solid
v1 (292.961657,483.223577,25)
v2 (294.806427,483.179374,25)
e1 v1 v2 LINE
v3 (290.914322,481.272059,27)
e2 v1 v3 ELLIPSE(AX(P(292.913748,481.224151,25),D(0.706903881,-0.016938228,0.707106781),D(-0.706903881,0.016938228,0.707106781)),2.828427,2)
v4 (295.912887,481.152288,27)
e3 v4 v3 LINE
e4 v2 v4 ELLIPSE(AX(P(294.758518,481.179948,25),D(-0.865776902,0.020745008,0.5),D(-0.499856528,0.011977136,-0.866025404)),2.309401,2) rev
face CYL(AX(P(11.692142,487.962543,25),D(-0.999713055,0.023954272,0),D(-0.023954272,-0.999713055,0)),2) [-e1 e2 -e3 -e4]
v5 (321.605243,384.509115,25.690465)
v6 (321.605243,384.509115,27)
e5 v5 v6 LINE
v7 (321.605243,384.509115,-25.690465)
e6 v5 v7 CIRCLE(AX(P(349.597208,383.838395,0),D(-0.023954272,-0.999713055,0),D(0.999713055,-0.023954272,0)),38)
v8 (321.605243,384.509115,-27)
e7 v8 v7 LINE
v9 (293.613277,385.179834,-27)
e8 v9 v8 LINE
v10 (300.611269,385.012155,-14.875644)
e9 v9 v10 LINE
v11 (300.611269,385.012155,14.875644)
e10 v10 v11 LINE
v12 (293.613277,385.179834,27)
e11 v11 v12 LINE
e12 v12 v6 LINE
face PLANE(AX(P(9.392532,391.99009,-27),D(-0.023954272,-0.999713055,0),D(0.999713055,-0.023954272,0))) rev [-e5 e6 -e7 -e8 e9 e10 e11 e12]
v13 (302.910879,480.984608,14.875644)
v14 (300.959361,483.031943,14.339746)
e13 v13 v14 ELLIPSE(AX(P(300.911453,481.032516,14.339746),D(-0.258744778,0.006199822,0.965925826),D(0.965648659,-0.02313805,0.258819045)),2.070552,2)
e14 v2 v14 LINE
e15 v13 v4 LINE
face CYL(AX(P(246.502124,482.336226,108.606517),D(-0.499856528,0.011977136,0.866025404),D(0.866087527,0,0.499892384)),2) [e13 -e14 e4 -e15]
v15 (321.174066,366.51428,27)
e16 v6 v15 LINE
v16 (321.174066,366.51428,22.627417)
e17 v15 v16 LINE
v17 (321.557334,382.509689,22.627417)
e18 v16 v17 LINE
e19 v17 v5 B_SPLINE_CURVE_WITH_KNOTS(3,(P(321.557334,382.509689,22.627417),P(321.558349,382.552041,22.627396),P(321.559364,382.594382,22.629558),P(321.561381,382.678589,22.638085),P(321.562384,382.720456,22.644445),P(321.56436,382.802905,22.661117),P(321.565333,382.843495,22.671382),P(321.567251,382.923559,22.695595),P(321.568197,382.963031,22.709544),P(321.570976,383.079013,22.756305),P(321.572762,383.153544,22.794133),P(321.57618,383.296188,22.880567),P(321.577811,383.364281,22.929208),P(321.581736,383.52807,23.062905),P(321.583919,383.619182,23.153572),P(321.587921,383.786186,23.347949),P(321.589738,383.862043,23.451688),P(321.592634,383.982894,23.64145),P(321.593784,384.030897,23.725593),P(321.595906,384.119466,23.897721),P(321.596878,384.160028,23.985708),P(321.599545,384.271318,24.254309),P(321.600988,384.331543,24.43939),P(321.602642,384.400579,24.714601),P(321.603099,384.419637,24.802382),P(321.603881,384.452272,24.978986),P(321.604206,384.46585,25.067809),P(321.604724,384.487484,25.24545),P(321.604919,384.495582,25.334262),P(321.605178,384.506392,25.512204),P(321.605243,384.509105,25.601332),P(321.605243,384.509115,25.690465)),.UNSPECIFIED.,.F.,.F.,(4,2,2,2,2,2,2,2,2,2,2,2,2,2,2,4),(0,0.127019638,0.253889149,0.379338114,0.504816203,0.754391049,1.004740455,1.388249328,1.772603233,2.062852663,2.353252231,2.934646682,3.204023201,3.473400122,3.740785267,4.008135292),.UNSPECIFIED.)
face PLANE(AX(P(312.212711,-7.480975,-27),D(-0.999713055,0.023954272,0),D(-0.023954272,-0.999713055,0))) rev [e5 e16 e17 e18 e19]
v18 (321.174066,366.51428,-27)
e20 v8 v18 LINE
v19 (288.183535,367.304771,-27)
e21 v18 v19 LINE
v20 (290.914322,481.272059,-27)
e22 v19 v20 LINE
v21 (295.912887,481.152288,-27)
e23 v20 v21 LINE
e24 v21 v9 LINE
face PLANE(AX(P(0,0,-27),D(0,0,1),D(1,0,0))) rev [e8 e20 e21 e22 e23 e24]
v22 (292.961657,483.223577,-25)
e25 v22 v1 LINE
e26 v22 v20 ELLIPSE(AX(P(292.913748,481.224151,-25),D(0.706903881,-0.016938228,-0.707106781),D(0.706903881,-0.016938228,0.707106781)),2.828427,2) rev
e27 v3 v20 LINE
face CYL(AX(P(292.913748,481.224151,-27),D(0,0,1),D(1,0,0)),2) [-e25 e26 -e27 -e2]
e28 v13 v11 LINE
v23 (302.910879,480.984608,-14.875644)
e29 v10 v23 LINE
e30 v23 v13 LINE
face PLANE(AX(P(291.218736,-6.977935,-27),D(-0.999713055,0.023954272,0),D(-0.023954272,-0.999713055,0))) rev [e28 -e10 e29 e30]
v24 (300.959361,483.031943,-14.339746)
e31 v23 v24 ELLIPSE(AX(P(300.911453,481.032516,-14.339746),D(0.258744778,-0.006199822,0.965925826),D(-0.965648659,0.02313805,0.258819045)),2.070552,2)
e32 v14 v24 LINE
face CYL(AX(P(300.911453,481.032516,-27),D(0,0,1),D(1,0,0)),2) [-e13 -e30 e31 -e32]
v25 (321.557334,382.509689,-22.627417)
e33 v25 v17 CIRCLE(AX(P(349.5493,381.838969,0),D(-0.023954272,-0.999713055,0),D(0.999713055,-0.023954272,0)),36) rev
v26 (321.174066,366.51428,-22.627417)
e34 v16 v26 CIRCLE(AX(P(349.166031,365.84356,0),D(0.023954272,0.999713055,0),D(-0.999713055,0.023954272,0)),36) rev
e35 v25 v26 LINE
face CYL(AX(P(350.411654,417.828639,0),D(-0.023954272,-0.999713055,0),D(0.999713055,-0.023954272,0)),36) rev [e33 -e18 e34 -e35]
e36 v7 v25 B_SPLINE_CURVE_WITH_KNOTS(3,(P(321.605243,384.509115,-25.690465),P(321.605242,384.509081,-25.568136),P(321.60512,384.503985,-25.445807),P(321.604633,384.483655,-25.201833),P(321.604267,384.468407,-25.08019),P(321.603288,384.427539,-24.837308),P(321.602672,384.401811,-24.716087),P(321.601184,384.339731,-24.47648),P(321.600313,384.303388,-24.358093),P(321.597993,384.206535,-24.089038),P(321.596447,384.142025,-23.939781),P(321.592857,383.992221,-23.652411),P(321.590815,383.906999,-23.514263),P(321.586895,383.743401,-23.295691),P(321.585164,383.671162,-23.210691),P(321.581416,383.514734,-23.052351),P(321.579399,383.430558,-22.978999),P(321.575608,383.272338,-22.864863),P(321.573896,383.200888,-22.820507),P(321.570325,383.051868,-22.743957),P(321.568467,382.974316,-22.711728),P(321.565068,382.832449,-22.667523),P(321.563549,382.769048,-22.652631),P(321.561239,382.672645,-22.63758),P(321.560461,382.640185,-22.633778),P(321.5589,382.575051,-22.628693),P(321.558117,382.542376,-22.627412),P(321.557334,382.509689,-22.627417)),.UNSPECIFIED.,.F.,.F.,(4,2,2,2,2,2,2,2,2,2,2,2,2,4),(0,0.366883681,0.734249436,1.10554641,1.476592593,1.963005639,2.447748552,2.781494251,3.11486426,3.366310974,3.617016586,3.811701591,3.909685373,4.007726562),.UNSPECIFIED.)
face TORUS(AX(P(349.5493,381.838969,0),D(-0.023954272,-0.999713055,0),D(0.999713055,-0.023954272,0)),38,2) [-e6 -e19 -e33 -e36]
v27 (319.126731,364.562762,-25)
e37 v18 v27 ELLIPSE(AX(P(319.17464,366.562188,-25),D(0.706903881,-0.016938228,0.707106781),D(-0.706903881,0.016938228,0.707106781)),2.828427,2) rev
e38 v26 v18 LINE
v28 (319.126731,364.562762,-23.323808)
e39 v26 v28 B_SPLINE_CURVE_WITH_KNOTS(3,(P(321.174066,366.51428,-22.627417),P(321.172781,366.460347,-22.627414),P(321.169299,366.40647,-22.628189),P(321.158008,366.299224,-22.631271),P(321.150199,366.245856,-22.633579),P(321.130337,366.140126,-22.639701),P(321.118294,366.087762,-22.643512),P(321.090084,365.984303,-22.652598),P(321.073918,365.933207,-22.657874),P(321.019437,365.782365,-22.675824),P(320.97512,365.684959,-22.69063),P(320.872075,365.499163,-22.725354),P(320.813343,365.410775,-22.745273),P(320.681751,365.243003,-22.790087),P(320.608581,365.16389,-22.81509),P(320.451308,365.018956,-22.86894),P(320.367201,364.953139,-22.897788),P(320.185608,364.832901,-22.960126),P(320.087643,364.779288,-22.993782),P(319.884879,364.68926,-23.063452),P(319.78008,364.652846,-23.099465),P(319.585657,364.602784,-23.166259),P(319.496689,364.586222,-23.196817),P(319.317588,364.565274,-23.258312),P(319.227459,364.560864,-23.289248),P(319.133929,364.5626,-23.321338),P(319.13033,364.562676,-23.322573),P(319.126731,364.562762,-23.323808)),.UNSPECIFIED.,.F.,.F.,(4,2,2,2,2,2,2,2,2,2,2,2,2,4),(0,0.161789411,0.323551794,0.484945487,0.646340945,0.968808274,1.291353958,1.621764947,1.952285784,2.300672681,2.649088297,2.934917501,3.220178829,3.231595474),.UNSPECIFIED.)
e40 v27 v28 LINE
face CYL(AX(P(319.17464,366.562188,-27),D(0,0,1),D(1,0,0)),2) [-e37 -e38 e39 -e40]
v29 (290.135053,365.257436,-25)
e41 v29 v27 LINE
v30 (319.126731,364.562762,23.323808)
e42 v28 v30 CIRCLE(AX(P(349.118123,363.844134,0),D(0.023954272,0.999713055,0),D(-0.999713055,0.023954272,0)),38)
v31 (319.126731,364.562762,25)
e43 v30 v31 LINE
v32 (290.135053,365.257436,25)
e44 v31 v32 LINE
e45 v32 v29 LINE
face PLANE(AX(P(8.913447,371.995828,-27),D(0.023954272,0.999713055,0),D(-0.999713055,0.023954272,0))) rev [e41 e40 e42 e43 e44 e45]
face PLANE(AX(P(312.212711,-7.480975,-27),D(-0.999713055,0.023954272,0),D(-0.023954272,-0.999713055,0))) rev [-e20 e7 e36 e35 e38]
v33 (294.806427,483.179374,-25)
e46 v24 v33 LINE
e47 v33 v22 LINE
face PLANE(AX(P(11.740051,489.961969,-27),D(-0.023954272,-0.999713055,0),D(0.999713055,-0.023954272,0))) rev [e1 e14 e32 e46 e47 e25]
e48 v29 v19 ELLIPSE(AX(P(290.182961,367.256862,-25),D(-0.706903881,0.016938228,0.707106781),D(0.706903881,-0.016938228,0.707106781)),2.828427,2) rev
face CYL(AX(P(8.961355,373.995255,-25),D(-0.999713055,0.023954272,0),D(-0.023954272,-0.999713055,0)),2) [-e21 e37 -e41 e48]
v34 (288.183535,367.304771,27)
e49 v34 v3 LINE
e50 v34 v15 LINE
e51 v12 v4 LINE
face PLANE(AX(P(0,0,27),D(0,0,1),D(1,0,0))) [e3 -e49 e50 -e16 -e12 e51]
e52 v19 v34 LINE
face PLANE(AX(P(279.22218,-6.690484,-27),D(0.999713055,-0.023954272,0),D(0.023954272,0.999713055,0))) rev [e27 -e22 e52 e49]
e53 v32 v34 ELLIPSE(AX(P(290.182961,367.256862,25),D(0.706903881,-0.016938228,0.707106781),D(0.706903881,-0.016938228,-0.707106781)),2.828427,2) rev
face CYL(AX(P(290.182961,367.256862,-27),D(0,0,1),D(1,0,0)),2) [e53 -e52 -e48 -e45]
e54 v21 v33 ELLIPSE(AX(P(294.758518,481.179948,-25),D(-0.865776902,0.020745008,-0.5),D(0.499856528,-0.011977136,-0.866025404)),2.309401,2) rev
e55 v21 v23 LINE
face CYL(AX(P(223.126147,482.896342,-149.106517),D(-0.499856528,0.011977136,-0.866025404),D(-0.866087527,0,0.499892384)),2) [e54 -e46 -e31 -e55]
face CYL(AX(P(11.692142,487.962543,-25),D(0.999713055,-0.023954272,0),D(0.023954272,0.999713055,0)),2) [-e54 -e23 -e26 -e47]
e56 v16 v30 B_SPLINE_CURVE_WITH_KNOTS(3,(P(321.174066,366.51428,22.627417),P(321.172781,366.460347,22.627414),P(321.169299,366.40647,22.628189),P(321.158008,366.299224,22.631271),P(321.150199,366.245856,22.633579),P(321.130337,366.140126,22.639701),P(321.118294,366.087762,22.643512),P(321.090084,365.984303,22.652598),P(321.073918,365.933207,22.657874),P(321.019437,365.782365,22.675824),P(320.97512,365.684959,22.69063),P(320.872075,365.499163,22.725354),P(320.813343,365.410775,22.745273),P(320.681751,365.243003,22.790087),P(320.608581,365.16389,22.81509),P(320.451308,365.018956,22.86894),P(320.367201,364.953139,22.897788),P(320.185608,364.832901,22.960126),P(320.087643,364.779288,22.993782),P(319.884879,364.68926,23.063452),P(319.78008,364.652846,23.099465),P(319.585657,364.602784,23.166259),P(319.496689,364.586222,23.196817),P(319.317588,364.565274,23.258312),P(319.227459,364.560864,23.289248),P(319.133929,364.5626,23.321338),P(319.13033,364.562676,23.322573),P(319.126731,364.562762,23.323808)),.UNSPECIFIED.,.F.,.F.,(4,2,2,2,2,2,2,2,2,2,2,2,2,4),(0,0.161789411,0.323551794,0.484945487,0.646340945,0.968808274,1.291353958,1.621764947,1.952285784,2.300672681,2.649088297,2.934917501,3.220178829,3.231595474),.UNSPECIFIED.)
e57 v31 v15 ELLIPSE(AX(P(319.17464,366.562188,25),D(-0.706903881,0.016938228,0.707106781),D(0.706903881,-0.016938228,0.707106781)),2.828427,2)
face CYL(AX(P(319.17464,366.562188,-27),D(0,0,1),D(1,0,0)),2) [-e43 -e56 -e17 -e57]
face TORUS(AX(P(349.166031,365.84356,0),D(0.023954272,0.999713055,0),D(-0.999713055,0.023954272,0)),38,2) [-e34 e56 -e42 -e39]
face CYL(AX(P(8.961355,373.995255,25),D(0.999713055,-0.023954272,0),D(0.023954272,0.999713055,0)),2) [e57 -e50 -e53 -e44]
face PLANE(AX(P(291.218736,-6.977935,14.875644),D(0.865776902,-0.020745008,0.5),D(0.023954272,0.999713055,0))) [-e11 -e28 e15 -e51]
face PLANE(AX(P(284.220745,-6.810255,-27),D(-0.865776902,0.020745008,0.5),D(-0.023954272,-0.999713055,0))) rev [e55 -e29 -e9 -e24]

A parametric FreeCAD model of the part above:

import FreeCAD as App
import Part
import Sketcher

V = App.Vector


def edges_at(feature, points):
    """Names of the edges that pass closest to the given points."""
    edges = feature.Shape.Edges
    near = lambda p: min(range(len(edges)), key=lambda i: edges[i].distToShape(Part.Vertex(*p))[0])
    return sorted({f"Edge{near(p) + 1}" for p in points})


def add_polygon(sketch, points):
    """Adds a closed chain of lines whose ends are joined by coincident constraints."""
    first, n = sketch.GeometryCount, len(points)
    for a, b in zip(points, points[1:] + points[:1]):
        sketch.addGeometry(Part.LineSegment(App.Vector(*a, 0), App.Vector(*b, 0)), False)
    for i in range(n):
        sketch.addConstraint(Sketcher.Constraint("Coincident", first + i, 2, first + (i + 1) % n, 1))

doc = App.newDocument("Part")
body = doc.addObject("PartDesign::Body", "Body")

# Sketch on XY plane
sketch1 = body.newObject("Sketcher::SketchObject", "Sketch")
sketch1.AttachmentSupport = (doc.getObject("XY_Plane"), [""])
sketch1.MapMode = "FlatFace"
add_polygon(sketch1, [(300.611269, 385.012155), (302.958787, 482.984034), (290.962231, 483.271485), (288.614712, 385.299603), (288.135627, 365.305345), (321.126157, 364.514854), (321.605243, 384.509115)])  # lines 0-6
sketch1.addConstraint(Sketcher.Constraint("Perpendicular", 0, 1))
sketch1.addConstraint(Sketcher.Constraint("Perpendicular", 1, 2))
sketch1.addConstraint(Sketcher.Constraint("Parallel", 2, 3))
sketch1.addConstraint(Sketcher.Constraint("Perpendicular", 3, 4))
sketch1.addConstraint(Sketcher.Constraint("Perpendicular", 4, 5))
sketch1.addConstraint(Sketcher.Constraint("Perpendicular", 5, 6))
sketch1.addConstraint(Sketcher.Constraint("Distance", 0, 98.0))
sketch1.addConstraint(Sketcher.Constraint("Distance", 1, 12.0))
sketch1.addConstraint(Sketcher.Constraint("Distance", 4, 33.0))
sketch1.addConstraint(Sketcher.Constraint("Distance", 5, 20.0))
sketch1.addConstraint(Sketcher.Constraint("DistanceY", 4, 2, 6, 2, 20.497301))
sketch1.addConstraint(Sketcher.Constraint("DistanceX", -1, 1, 1, 2, 290.962231))
sketch1.addConstraint(Sketcher.Constraint("DistanceX", -1, 1, 2, 2, 288.614712))
sketch1.addConstraint(Sketcher.Constraint("DistanceY", -1, 1, 0, 2, 482.984034))
pad1 = body.newObject("PartDesign::Pad", "Pad")
pad1.Profile = sketch1
pad1.Length = 54
pad1.Midplane = True

# Sketch on an angled plane
sketch2 = body.newObject("Sketcher::SketchObject", "Sketch001")
sketch2.Placement = App.Placement(V(8.913447, 371.995828, 0), App.Rotation(V(0.999713055, -0.023954272, 0), V(0, 0, 0.999999999), V(-0.023954272, -0.999713055, 0), "ZXY"))
sketch2.addGeometry(Part.Circle(V(340.302324, 0, 0), V(0, 0, 1), 36), False)
sketch2.addConstraint(Sketcher.Constraint("PointOnObject", 0, 3, -1))
sketch2.addConstraint(Sketcher.Constraint("Diameter", 0, 72.0))
sketch2.addConstraint(Sketcher.Constraint("DistanceX", -1, 1, 0, 3, 340.302324))
pocket1 = body.newObject("PartDesign::Pocket", "Pocket")
pocket1.Profile = sketch2
pocket1.Length = 54
doc.recompute()

chamfer = body.newObject("PartDesign::Chamfer", "Chamfer")
chamfer.Base = (pocket1, edges_at(pocket1, [(301.785, 433.998, 27)]))
chamfer.ChamferType = "Two distances"
chamfer.Size = 7
chamfer.Size2 = 12.124356
doc.recompute()

chamfer2 = body.newObject("PartDesign::Chamfer", "Chamfer001")
chamfer2.Base = (chamfer, edges_at(chamfer, [(301.785, 433.998, -27)]))
chamfer2.ChamferType = "Two distances"
chamfer2.Size = 7
chamfer2.Size2 = 12.124356
chamfer2.FlipDirection = True
doc.recompute()

fillet = body.newObject("PartDesign::Fillet", "Fillet")
fillet.Base = (chamfer2, edges_at(chamfer2, [
    (321.126, 364.515, -24.814),
    (288.136, 365.305, 0),
    (290.962, 483.271, 0),
    (304.631, 364.91, -27),
    (321.126, 364.515, 24.814),
    (313.128, 364.706, 0),
    (313.608, 384.701, 0),
    (299.46, 483.068, 20.938),
    (302.959, 482.984, 0),
    (299.46, 483.068, -20.938),
    (304.631, 364.91, 27),
    (293.462, 483.212, -27),
    (293.462, 483.212, 27),
]))
fillet.Radius = 2

doc.recompute()
